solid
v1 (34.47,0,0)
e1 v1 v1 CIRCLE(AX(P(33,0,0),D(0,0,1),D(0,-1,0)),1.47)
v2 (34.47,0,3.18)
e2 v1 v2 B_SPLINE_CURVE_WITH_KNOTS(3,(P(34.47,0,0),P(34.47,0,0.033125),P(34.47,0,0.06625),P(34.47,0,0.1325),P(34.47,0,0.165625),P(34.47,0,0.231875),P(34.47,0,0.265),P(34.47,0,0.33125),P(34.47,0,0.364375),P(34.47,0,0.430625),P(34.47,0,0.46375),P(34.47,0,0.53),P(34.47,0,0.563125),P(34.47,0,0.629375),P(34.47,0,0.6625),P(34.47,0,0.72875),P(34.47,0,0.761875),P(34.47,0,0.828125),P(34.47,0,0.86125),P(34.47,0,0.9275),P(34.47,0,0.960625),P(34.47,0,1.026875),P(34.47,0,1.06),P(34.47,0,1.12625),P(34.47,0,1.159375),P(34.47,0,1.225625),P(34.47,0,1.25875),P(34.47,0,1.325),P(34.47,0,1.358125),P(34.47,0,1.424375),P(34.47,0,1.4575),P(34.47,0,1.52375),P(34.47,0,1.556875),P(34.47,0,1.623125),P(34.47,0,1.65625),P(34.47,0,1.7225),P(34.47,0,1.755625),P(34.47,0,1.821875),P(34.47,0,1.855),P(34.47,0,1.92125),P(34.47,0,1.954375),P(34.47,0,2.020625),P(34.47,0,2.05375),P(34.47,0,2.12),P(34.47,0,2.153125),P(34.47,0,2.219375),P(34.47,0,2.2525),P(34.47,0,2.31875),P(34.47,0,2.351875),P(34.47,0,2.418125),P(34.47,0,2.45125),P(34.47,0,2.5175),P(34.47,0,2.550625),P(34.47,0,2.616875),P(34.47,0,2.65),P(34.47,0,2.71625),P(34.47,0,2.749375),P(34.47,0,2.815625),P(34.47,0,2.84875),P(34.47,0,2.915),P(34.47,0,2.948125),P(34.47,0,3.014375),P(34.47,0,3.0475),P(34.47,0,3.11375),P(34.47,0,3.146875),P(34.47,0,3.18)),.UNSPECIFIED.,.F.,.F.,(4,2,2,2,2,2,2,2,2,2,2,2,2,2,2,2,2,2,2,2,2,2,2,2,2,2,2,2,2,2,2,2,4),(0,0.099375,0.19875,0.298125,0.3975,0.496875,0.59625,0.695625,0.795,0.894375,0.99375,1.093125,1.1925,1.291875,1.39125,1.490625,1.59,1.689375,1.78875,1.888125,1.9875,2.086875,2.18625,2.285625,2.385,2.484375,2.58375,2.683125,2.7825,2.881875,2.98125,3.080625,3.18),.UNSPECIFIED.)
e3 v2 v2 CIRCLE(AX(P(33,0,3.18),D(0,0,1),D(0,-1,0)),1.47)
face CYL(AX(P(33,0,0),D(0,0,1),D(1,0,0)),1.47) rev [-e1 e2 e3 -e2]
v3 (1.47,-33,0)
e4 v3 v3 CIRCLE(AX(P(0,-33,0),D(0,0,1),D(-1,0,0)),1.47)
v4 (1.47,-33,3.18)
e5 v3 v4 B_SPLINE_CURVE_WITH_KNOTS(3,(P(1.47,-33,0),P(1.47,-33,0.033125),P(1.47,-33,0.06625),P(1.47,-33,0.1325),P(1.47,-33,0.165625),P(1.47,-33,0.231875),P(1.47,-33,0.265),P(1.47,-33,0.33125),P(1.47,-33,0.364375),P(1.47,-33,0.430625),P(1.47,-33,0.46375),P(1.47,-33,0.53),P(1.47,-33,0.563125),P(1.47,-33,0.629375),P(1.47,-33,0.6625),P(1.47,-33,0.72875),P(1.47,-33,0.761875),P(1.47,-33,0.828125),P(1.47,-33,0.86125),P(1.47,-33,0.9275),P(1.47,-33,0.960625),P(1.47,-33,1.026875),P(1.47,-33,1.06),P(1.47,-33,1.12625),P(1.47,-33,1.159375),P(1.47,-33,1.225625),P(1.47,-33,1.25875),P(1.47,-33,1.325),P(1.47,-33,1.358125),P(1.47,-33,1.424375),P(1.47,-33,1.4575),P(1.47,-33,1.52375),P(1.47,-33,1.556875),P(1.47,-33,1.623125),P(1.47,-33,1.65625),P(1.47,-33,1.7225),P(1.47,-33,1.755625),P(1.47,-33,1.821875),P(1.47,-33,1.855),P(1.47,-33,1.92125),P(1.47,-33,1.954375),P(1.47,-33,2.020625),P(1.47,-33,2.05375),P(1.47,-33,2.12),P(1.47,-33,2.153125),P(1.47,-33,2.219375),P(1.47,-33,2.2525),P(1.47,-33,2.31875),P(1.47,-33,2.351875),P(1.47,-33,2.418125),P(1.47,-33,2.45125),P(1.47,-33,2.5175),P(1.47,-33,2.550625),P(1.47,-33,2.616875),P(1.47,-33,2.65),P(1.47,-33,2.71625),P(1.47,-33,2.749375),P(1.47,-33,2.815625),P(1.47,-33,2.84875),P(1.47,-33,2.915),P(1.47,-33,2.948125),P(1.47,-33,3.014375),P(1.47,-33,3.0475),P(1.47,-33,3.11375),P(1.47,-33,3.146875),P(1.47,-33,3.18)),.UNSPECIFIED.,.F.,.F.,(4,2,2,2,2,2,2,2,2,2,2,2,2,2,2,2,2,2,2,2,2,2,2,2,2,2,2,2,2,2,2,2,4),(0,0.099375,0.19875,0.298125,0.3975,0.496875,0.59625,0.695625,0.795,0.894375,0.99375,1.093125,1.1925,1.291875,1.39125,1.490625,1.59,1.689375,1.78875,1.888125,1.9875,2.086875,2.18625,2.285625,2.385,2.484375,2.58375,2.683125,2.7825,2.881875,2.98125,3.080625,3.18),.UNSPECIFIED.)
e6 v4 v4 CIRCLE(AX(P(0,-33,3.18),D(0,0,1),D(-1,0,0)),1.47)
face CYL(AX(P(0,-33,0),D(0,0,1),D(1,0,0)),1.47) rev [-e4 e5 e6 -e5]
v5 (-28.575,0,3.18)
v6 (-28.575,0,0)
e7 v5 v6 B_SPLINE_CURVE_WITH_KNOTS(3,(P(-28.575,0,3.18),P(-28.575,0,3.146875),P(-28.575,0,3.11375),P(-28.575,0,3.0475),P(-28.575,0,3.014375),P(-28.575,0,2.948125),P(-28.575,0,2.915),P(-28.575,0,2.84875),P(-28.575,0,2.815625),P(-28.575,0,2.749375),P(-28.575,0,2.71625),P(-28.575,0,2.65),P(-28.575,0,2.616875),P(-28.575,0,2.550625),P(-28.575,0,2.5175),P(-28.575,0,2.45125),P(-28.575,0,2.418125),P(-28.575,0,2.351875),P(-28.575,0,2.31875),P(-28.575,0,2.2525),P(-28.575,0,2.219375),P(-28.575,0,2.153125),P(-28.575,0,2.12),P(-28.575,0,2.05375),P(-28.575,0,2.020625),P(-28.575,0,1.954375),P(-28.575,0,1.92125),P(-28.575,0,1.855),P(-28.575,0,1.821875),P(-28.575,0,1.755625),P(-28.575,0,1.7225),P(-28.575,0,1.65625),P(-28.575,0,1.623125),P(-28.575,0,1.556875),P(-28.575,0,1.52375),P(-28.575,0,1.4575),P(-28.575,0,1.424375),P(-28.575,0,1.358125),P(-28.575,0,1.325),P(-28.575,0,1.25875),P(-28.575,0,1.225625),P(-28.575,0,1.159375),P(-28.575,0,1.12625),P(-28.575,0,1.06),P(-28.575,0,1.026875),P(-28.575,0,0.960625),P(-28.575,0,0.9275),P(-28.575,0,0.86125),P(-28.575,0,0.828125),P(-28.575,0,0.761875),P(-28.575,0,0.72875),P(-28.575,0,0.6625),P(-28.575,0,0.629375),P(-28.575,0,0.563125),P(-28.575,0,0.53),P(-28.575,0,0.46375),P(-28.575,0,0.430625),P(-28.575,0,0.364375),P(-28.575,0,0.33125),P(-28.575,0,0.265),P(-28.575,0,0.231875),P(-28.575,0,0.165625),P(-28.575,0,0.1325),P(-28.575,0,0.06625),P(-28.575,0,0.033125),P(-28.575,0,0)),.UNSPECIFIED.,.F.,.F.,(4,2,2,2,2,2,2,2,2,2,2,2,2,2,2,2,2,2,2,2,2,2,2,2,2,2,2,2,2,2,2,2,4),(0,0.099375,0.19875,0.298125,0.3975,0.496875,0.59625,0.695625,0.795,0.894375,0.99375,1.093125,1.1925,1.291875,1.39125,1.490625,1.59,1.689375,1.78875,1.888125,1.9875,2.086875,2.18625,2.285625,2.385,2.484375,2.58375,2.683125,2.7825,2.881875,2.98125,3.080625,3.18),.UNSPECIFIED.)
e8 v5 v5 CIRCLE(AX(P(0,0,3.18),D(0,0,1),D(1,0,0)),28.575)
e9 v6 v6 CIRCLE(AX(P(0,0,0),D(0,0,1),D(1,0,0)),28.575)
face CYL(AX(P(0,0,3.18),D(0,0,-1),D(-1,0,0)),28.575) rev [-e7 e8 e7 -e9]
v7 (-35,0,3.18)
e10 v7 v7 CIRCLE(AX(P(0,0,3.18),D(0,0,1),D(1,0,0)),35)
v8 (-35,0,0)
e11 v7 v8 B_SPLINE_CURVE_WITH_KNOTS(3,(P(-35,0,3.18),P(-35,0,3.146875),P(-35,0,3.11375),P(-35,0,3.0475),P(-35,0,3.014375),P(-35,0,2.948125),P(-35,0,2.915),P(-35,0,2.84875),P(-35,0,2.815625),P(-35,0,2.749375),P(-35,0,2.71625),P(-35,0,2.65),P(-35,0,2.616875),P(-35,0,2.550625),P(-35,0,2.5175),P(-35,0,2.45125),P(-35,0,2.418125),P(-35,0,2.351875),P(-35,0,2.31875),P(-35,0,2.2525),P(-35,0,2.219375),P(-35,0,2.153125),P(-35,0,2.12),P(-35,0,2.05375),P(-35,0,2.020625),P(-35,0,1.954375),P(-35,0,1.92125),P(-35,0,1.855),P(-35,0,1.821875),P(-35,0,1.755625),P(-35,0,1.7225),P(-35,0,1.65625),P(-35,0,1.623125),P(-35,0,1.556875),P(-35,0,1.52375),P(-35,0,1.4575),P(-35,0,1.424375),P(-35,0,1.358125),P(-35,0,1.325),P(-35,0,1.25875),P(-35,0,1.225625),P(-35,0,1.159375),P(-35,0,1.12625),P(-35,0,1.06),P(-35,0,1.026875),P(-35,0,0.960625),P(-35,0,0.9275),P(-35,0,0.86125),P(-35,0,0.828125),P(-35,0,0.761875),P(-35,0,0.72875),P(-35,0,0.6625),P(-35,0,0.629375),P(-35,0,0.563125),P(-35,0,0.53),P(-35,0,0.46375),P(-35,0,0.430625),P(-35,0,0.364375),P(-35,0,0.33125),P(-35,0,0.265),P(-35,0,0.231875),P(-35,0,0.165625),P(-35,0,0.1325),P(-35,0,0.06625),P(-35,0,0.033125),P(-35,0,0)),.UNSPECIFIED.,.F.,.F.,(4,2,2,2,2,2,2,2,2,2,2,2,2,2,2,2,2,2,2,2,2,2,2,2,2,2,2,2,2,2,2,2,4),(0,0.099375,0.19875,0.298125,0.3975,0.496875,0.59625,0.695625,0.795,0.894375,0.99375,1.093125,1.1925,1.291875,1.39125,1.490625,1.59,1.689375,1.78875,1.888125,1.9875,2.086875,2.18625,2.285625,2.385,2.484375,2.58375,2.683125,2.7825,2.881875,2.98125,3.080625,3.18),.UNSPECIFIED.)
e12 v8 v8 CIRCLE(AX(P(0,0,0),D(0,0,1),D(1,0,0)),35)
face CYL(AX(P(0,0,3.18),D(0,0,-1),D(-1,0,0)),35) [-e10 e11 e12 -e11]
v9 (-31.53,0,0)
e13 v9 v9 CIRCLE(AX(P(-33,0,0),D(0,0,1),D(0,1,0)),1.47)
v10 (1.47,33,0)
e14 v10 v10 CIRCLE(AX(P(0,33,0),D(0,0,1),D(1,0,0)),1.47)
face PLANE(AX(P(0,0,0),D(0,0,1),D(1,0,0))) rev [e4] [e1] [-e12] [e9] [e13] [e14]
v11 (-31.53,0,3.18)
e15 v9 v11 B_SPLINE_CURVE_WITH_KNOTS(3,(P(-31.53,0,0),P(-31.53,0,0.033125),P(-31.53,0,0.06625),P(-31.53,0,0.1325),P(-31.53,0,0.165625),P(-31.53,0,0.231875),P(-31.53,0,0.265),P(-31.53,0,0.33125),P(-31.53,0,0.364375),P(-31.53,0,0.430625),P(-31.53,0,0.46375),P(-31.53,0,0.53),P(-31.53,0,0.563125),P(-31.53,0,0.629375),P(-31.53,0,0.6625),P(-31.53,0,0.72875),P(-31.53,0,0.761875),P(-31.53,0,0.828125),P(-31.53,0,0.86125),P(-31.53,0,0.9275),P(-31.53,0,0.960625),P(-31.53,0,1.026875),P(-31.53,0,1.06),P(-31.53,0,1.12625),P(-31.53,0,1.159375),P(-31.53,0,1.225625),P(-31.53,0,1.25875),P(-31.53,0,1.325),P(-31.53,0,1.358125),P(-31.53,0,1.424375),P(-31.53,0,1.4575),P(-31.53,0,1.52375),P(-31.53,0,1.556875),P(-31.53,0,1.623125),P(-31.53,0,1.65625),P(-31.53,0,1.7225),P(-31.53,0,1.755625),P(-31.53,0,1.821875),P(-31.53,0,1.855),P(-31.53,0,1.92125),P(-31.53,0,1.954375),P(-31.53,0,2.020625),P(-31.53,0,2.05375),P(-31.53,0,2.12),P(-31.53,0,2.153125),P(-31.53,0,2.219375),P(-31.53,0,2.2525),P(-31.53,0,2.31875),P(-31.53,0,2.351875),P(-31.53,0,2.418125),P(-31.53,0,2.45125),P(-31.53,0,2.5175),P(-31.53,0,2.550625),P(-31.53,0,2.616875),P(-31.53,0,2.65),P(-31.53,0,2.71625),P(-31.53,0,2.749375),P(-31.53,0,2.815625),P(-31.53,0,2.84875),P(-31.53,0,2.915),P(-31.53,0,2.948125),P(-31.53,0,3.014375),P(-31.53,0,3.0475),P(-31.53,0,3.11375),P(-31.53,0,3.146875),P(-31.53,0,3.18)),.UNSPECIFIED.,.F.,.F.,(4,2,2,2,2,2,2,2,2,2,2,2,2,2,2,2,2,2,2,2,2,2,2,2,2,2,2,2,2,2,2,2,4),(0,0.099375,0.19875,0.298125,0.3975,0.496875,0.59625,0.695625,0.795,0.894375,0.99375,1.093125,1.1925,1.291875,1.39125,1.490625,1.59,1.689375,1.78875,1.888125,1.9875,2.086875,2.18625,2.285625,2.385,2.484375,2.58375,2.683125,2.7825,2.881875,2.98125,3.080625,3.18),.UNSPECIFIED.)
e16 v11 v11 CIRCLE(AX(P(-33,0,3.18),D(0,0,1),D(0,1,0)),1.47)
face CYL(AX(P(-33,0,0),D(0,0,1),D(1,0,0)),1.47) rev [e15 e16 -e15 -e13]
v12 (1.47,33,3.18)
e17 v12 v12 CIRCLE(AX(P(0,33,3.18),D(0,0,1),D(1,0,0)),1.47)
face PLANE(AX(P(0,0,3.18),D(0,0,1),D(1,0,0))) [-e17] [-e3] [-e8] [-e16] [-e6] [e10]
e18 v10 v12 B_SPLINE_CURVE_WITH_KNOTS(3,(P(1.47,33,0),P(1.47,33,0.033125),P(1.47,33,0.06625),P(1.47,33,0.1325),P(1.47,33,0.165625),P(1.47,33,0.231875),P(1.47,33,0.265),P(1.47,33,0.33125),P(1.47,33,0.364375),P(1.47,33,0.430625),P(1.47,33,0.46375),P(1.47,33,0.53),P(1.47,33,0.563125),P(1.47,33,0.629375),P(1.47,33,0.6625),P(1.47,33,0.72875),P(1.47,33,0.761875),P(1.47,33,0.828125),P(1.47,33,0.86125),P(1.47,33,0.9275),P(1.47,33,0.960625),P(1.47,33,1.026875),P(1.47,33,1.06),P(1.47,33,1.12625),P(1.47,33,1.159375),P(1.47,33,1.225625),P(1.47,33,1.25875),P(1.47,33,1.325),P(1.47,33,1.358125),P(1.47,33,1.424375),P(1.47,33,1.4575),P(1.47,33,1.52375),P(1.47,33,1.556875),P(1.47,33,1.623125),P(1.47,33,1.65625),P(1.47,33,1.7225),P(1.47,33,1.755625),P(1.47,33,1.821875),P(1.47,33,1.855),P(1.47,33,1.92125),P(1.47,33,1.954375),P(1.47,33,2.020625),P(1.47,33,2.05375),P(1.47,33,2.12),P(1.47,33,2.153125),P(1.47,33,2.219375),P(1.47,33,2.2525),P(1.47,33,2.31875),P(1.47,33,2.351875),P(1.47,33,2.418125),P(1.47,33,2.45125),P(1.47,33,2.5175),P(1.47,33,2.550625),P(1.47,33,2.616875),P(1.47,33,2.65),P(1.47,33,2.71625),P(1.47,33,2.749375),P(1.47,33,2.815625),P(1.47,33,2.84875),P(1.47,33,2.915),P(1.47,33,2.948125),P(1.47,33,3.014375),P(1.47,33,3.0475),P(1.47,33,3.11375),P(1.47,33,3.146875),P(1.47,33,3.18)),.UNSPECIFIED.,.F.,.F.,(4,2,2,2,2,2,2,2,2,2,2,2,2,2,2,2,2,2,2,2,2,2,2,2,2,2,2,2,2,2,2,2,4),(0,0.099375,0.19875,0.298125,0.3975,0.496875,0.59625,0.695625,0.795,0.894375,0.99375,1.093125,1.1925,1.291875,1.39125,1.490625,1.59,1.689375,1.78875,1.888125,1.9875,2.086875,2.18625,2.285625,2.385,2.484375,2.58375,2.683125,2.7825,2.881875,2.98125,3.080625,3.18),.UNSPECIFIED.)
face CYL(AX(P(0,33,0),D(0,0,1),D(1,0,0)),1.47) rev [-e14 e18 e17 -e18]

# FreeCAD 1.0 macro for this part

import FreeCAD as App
import Part
import Sketcher
Q = App.Units.Quantity

doc = App.newDocument("Part")
body = doc.addObject("PartDesign::Body", "Body")

# Sketch on XY plane
sketch1 = body.newObject("Sketcher::SketchObject", "Sketch")
sketch1.AttachmentSupport = (doc.getObject("XY_Plane"), [""])
sketch1.MapMode = "FlatFace"
sketch1.addGeometry([
    Part.Circle(App.Vector(0, 0, 0), App.Vector(0, 0, 1), 35),
    Part.Circle(App.Vector(0, 0, 0), App.Vector(0, 0, 1), 29),
], False)
sketch1.addConstraint([
    Sketcher.Constraint("Coincident", 0, 3, -1, 1),
    Sketcher.Constraint("Coincident", 1, 3, -1, 1),
    Sketcher.Constraint("Diameter", 0, Q("70 mm")),
    Sketcher.Constraint("Diameter", 1, Q("57.15 mm")),
])
pad1 = body.newObject("PartDesign::Pad", "Pad")
pad1.Profile = sketch1
pad1.Length = 3.18

# Sketch on XY plane
sketch2 = body.newObject("Sketcher::SketchObject", "Sketch001")
sketch2.AttachmentSupport = (doc.getObject("XY_Plane"), [""])
sketch2.MapMode = "FlatFace"
sketch2.AttachmentOffset = App.Placement(App.Vector(0, 0, 3.18), App.Rotation())
sketch2.addGeometry(Part.Circle(App.Vector(0, 33, 0), App.Vector(0, 0, 1), 1.5), False)
sketch2.addConstraint([
    Sketcher.Constraint("PointOnObject", 0, 3, -2),
    Sketcher.Constraint("Diameter", 0, Q("2.94 mm")),
    Sketcher.Constraint("DistanceY", -1, 1, 0, 3, Q("33 mm")),
])
pocket1 = body.newObject("PartDesign::Pocket", "Pocket")
pocket1.Profile = sketch2
pocket1.Length = 3.18
doc.recompute()

polarpattern = body.newObject("PartDesign::PolarPattern", "PolarPattern")
polarpattern.Originals = [pocket1]
polarpattern.Axis = (doc.getObject("Z_Axis"), [""])
polarpattern.Angle = 360
polarpattern.Occurrences = 4
body.Tip = polarpattern

doc.recompute()
